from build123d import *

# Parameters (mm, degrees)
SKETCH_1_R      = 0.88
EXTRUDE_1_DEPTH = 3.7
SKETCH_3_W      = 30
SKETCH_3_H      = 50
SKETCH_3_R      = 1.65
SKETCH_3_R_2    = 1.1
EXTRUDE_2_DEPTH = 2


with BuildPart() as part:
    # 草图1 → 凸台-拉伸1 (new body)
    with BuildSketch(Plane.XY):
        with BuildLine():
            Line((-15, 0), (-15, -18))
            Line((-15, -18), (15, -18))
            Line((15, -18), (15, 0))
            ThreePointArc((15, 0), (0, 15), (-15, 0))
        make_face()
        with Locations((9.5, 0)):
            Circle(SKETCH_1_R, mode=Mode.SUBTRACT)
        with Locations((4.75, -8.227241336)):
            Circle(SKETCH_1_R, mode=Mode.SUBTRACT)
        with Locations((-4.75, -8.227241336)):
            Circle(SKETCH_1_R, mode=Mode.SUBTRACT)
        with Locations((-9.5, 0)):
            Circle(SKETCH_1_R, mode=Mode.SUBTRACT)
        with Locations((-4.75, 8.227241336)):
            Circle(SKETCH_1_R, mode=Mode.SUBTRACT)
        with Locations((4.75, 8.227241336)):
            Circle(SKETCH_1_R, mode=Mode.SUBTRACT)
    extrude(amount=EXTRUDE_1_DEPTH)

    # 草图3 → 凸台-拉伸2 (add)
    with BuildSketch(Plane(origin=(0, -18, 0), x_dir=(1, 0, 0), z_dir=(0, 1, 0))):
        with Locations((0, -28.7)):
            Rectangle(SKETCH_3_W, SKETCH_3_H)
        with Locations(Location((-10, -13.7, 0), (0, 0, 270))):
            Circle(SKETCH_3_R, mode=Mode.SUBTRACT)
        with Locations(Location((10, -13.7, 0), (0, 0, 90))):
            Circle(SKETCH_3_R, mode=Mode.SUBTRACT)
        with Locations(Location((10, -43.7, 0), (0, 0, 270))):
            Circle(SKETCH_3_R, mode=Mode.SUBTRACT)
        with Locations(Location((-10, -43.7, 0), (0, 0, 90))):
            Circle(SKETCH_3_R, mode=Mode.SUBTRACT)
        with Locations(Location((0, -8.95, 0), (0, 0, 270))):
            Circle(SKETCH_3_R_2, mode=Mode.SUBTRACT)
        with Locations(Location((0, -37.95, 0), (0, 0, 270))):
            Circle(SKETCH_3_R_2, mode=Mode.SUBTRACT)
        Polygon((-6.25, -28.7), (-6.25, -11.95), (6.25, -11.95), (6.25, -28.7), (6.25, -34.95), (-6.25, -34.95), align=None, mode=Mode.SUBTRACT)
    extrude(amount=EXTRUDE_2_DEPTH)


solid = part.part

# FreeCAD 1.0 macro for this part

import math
import FreeCAD as App
import Part
import Sketcher

doc = App.newDocument("Part")
params = doc.addObject("Spreadsheet::Sheet", "Params")
for row, (alias, value) in enumerate([
    ("sketch1_radius", "15 mm"),
    ("sketch1_diameter", "1.76 mm"),
    ("sketch1_height", "18 mm"),
    ("pad1_length", "3.7 mm"),
    ("sketch2_diameter", "3.3 mm"),
    ("sketch2_diameter2", "2.2 mm"),
    ("sketch2_width", "30 mm"),
    ("sketch2_height", "50 mm"),
    ("sketch2_height2", "23 mm"),
    ("pad2_length", "2 mm"),
], start=1):
    params.set(f"A{row}", alias)
    params.set(f"B{row}", "=" + value)
    params.setAlias(f"B{row}", alias)

body = doc.addObject("PartDesign::Body", "Body")

# Sketch on XY plane
sketch1 = body.newObject("Sketcher::SketchObject", "Sketch")
sketch1.AttachmentSupport = (doc.getObject("XY_Plane"), [""])
sketch1.MapMode = "FlatFace"
sketch1.addGeometry([
    Part.LineSegment(App.Vector(-15, 0, 0), App.Vector(-15, -18, 0)),  # 0
    Part.LineSegment(App.Vector(-15, -18, 0), App.Vector(15, -18, 0)),  # 1
    Part.LineSegment(App.Vector(15, -18, 0), App.Vector(15, 0, 0)),  # 2
    Part.ArcOfCircle(Part.Circle(App.Vector(0, 0, 0), App.Vector(0, 0, 1), 15), math.radians(0), math.radians(180)),  # 3
    Part.Circle(App.Vector(-4.8, -8.2, 0), App.Vector(0, 0, 1), 0.9),  # 4
    Part.Circle(App.Vector(4.8, -8.2, 0), App.Vector(0, 0, 1), 0.9),  # 5
    Part.Circle(App.Vector(-9.5, 0, 0), App.Vector(0, 0, 1), 0.9),  # 6
    Part.Circle(App.Vector(-4.8, 8.2, 0), App.Vector(0, 0, 1), 0.9),  # 7
    Part.Circle(App.Vector(9.5, 0, 0), App.Vector(0, 0, 1), 0.9),  # 8
    Part.Circle(App.Vector(4.8, 8.2, 0), App.Vector(0, 0, 1), 0.9),  # 9
], False)
sketch1.addConstraint([
    Sketcher.Constraint("Coincident", 0, 2, 1, 1),
    Sketcher.Constraint("Coincident", 1, 2, 2, 1),
    Sketcher.Constraint("Tangent", 2, 2, 3, 1),
    Sketcher.Constraint("Tangent", 3, 2, 0, 1),
    Sketcher.Constraint("Vertical", 0),
    Sketcher.Constraint("Horizontal", 1),
    Sketcher.Constraint("Vertical", 2),
    Sketcher.Constraint("Coincident", 3, 3, -1, 1),
    Sketcher.Constraint("Equal", 4, 5),
    Sketcher.Constraint("Equal", 5, 6),
    Sketcher.Constraint("Equal", 6, 7),
    Sketcher.Constraint("Equal", 7, 8),
    Sketcher.Constraint("Equal", 8, 9),
    Sketcher.Constraint("Symmetric", 5, 3, 7, 3, -1, 1),
    Sketcher.Constraint("Symmetric", 6, 3, 8, 3, -1, 1),
    Sketcher.Constraint("Symmetric", 4, 3, 9, 3, -1, 1),
    Sketcher.Constraint("Symmetric", 4, 3, 5, 3, -2),
    Sketcher.Constraint("PointOnObject", 6, 3, -1),
    Sketcher.Constraint("Radius", 3, 15.0),
    Sketcher.Constraint("Diameter", 4, 1.76),
    Sketcher.Constraint("DistanceY", 0, 2, 0, 1, 18.0),
    Sketcher.Constraint("DistanceX", 6, 3, 8, 3, 19.0),
    Sketcher.Constraint("DistanceX", 4, 3, 5, 3, 9.5),
    Sketcher.Constraint("DistanceY", 4, 3, -1, 1, 8.227241),
])
sketch1.setExpression("Constraints[18]", "Params.sketch1_radius")
sketch1.setExpression("Constraints[19]", "Params.sketch1_diameter")
sketch1.setExpression("Constraints[20]", "Params.sketch1_height")
pad1 = body.newObject("PartDesign::Pad", "Pad")
pad1.Profile = sketch1
pad1.setExpression("Length", "Params.pad1_length")

# Sketch on XZ plane
sketch2 = body.newObject("Sketcher::SketchObject", "Sketch001")
sketch2.AttachmentSupport = (doc.getObject("XZ_Plane"), [""])
sketch2.MapMode = "FlatFace"
sketch2.AttachmentOffset = App.Placement(App.Vector(0, 0, 18), App.Rotation())
sketch2.addGeometry([
    Part.LineSegment(App.Vector(-15, 3.7, 0), App.Vector(-15, 53.7, 0)),  # 0
    Part.LineSegment(App.Vector(-15, 53.7, 0), App.Vector(15, 53.7, 0)),  # 1
    Part.LineSegment(App.Vector(15, 53.7, 0), App.Vector(15, 3.7, 0)),  # 2
    Part.LineSegment(App.Vector(15, 3.7, 0), App.Vector(-15, 3.7, 0)),  # 3
    Part.Circle(App.Vector(-10, 43.7, 0), App.Vector(0, 0, 1), 1.6),  # 4
    Part.Circle(App.Vector(0, 38, 0), App.Vector(0, 0, 1), 1.1),  # 5
    Part.Circle(App.Vector(10, 43.7, 0), App.Vector(0, 0, 1), 1.6),  # 6
    Part.Circle(App.Vector(-10, 13.7, 0), App.Vector(0, 0, 1), 1.6),  # 7
    Part.LineSegment(App.Vector(-6.2, 35, 0), App.Vector(-6.2, 11.9, 0)),  # 8
    Part.LineSegment(App.Vector(-6.2, 11.9, 0), App.Vector(6.2, 11.9, 0)),  # 9
    Part.LineSegment(App.Vector(6.2, 11.9, 0), App.Vector(6.2, 35, 0)),  # 10
    Part.LineSegment(App.Vector(6.2, 35, 0), App.Vector(-6.2, 35, 0)),  # 11
    Part.Circle(App.Vector(0, 8.9, 0), App.Vector(0, 0, 1), 1.1),  # 12
    Part.Circle(App.Vector(10, 13.7, 0), App.Vector(0, 0, 1), 1.6),  # 13
], False)
sketch2.addConstraint([
    Sketcher.Constraint("Coincident", 0, 2, 1, 1),
    Sketcher.Constraint("Coincident", 1, 2, 2, 1),
    Sketcher.Constraint("Coincident", 2, 2, 3, 1),
    Sketcher.Constraint("Coincident", 3, 2, 0, 1),
    Sketcher.Constraint("Coincident", 8, 2, 9, 1),
    Sketcher.Constraint("Coincident", 9, 2, 10, 1),
    Sketcher.Constraint("Coincident", 10, 2, 11, 1),
    Sketcher.Constraint("Coincident", 11, 2, 8, 1),
    Sketcher.Constraint("Vertical", 0),
    Sketcher.Constraint("Horizontal", 1),
    Sketcher.Constraint("Vertical", 2),
    Sketcher.Constraint("Horizontal", 3),
    Sketcher.Constraint("Vertical", 8),
    Sketcher.Constraint("Horizontal", 9),
    Sketcher.Constraint("Vertical", 10),
    Sketcher.Constraint("Horizontal", 11),
    Sketcher.Constraint("Equal", 4, 6),
    Sketcher.Constraint("Equal", 6, 7),
    Sketcher.Constraint("Equal", 5, 12),
    Sketcher.Constraint("Equal", 7, 13),
    Sketcher.Constraint("Symmetric", 4, 3, 6, 3, -2),
    Sketcher.Constraint("Symmetric", 7, 3, 13, 3, -2),
    Sketcher.Constraint("PointOnObject", 5, 3, -2),
    Sketcher.Constraint("PointOnObject", 12, 3, -2),
    Sketcher.Constraint("Vertical", 4, 3, 7, 3),
    Sketcher.Constraint("Diameter", 4, 3.3),
    Sketcher.Constraint("Diameter", 5, 2.2),
    Sketcher.Constraint("DistanceX", 1, 1, 1, 2, 30.0),
    Sketcher.Constraint("DistanceY", 0, 1, 0, 2, 50.0),
    Sketcher.Constraint("DistanceY", 8, 2, 8, 1, 23.0),
    Sketcher.Constraint("DistanceX", 9, 1, 9, 2, 12.5),
    Sketcher.Constraint("DistanceX", 4, 3, -1, 1, 10.0),
    Sketcher.Constraint("DistanceX", 0, 2, -1, 1, 15.0),
    Sketcher.Constraint("DistanceY", 7, 3, 4, 3, 30.0),
    Sketcher.Constraint("DistanceY", 12, 3, 5, 3, 29.0),
    Sketcher.Constraint("DistanceY", 4, 3, 0, 2, 10.0),
    Sketcher.Constraint("DistanceY", 12, 3, 8, 2, 3.0),
    Sketcher.Constraint("DistanceY", -1, 1, 4, 3, 43.7),
    Sketcher.Constraint("DistanceY", -1, 1, 5, 3, 37.95),
    Sketcher.Constraint("DistanceX", 8, 2, -1, 1, 6.25),
])
sketch2.setExpression("Constraints[25]", "Params.sketch2_diameter")
sketch2.setExpression("Constraints[26]", "Params.sketch2_diameter2")
sketch2.setExpression("Constraints[27]", "Params.sketch2_width")
sketch2.setExpression("Constraints[28]", "Params.sketch2_height")
sketch2.setExpression("Constraints[29]", "Params.sketch2_height2")
pad2 = body.newObject("PartDesign::Pad", "Pad001")
pad2.Profile = sketch2
pad2.setExpression("Length", "Params.pad2_length")
pad2.Reversed = True

doc.recompute()
